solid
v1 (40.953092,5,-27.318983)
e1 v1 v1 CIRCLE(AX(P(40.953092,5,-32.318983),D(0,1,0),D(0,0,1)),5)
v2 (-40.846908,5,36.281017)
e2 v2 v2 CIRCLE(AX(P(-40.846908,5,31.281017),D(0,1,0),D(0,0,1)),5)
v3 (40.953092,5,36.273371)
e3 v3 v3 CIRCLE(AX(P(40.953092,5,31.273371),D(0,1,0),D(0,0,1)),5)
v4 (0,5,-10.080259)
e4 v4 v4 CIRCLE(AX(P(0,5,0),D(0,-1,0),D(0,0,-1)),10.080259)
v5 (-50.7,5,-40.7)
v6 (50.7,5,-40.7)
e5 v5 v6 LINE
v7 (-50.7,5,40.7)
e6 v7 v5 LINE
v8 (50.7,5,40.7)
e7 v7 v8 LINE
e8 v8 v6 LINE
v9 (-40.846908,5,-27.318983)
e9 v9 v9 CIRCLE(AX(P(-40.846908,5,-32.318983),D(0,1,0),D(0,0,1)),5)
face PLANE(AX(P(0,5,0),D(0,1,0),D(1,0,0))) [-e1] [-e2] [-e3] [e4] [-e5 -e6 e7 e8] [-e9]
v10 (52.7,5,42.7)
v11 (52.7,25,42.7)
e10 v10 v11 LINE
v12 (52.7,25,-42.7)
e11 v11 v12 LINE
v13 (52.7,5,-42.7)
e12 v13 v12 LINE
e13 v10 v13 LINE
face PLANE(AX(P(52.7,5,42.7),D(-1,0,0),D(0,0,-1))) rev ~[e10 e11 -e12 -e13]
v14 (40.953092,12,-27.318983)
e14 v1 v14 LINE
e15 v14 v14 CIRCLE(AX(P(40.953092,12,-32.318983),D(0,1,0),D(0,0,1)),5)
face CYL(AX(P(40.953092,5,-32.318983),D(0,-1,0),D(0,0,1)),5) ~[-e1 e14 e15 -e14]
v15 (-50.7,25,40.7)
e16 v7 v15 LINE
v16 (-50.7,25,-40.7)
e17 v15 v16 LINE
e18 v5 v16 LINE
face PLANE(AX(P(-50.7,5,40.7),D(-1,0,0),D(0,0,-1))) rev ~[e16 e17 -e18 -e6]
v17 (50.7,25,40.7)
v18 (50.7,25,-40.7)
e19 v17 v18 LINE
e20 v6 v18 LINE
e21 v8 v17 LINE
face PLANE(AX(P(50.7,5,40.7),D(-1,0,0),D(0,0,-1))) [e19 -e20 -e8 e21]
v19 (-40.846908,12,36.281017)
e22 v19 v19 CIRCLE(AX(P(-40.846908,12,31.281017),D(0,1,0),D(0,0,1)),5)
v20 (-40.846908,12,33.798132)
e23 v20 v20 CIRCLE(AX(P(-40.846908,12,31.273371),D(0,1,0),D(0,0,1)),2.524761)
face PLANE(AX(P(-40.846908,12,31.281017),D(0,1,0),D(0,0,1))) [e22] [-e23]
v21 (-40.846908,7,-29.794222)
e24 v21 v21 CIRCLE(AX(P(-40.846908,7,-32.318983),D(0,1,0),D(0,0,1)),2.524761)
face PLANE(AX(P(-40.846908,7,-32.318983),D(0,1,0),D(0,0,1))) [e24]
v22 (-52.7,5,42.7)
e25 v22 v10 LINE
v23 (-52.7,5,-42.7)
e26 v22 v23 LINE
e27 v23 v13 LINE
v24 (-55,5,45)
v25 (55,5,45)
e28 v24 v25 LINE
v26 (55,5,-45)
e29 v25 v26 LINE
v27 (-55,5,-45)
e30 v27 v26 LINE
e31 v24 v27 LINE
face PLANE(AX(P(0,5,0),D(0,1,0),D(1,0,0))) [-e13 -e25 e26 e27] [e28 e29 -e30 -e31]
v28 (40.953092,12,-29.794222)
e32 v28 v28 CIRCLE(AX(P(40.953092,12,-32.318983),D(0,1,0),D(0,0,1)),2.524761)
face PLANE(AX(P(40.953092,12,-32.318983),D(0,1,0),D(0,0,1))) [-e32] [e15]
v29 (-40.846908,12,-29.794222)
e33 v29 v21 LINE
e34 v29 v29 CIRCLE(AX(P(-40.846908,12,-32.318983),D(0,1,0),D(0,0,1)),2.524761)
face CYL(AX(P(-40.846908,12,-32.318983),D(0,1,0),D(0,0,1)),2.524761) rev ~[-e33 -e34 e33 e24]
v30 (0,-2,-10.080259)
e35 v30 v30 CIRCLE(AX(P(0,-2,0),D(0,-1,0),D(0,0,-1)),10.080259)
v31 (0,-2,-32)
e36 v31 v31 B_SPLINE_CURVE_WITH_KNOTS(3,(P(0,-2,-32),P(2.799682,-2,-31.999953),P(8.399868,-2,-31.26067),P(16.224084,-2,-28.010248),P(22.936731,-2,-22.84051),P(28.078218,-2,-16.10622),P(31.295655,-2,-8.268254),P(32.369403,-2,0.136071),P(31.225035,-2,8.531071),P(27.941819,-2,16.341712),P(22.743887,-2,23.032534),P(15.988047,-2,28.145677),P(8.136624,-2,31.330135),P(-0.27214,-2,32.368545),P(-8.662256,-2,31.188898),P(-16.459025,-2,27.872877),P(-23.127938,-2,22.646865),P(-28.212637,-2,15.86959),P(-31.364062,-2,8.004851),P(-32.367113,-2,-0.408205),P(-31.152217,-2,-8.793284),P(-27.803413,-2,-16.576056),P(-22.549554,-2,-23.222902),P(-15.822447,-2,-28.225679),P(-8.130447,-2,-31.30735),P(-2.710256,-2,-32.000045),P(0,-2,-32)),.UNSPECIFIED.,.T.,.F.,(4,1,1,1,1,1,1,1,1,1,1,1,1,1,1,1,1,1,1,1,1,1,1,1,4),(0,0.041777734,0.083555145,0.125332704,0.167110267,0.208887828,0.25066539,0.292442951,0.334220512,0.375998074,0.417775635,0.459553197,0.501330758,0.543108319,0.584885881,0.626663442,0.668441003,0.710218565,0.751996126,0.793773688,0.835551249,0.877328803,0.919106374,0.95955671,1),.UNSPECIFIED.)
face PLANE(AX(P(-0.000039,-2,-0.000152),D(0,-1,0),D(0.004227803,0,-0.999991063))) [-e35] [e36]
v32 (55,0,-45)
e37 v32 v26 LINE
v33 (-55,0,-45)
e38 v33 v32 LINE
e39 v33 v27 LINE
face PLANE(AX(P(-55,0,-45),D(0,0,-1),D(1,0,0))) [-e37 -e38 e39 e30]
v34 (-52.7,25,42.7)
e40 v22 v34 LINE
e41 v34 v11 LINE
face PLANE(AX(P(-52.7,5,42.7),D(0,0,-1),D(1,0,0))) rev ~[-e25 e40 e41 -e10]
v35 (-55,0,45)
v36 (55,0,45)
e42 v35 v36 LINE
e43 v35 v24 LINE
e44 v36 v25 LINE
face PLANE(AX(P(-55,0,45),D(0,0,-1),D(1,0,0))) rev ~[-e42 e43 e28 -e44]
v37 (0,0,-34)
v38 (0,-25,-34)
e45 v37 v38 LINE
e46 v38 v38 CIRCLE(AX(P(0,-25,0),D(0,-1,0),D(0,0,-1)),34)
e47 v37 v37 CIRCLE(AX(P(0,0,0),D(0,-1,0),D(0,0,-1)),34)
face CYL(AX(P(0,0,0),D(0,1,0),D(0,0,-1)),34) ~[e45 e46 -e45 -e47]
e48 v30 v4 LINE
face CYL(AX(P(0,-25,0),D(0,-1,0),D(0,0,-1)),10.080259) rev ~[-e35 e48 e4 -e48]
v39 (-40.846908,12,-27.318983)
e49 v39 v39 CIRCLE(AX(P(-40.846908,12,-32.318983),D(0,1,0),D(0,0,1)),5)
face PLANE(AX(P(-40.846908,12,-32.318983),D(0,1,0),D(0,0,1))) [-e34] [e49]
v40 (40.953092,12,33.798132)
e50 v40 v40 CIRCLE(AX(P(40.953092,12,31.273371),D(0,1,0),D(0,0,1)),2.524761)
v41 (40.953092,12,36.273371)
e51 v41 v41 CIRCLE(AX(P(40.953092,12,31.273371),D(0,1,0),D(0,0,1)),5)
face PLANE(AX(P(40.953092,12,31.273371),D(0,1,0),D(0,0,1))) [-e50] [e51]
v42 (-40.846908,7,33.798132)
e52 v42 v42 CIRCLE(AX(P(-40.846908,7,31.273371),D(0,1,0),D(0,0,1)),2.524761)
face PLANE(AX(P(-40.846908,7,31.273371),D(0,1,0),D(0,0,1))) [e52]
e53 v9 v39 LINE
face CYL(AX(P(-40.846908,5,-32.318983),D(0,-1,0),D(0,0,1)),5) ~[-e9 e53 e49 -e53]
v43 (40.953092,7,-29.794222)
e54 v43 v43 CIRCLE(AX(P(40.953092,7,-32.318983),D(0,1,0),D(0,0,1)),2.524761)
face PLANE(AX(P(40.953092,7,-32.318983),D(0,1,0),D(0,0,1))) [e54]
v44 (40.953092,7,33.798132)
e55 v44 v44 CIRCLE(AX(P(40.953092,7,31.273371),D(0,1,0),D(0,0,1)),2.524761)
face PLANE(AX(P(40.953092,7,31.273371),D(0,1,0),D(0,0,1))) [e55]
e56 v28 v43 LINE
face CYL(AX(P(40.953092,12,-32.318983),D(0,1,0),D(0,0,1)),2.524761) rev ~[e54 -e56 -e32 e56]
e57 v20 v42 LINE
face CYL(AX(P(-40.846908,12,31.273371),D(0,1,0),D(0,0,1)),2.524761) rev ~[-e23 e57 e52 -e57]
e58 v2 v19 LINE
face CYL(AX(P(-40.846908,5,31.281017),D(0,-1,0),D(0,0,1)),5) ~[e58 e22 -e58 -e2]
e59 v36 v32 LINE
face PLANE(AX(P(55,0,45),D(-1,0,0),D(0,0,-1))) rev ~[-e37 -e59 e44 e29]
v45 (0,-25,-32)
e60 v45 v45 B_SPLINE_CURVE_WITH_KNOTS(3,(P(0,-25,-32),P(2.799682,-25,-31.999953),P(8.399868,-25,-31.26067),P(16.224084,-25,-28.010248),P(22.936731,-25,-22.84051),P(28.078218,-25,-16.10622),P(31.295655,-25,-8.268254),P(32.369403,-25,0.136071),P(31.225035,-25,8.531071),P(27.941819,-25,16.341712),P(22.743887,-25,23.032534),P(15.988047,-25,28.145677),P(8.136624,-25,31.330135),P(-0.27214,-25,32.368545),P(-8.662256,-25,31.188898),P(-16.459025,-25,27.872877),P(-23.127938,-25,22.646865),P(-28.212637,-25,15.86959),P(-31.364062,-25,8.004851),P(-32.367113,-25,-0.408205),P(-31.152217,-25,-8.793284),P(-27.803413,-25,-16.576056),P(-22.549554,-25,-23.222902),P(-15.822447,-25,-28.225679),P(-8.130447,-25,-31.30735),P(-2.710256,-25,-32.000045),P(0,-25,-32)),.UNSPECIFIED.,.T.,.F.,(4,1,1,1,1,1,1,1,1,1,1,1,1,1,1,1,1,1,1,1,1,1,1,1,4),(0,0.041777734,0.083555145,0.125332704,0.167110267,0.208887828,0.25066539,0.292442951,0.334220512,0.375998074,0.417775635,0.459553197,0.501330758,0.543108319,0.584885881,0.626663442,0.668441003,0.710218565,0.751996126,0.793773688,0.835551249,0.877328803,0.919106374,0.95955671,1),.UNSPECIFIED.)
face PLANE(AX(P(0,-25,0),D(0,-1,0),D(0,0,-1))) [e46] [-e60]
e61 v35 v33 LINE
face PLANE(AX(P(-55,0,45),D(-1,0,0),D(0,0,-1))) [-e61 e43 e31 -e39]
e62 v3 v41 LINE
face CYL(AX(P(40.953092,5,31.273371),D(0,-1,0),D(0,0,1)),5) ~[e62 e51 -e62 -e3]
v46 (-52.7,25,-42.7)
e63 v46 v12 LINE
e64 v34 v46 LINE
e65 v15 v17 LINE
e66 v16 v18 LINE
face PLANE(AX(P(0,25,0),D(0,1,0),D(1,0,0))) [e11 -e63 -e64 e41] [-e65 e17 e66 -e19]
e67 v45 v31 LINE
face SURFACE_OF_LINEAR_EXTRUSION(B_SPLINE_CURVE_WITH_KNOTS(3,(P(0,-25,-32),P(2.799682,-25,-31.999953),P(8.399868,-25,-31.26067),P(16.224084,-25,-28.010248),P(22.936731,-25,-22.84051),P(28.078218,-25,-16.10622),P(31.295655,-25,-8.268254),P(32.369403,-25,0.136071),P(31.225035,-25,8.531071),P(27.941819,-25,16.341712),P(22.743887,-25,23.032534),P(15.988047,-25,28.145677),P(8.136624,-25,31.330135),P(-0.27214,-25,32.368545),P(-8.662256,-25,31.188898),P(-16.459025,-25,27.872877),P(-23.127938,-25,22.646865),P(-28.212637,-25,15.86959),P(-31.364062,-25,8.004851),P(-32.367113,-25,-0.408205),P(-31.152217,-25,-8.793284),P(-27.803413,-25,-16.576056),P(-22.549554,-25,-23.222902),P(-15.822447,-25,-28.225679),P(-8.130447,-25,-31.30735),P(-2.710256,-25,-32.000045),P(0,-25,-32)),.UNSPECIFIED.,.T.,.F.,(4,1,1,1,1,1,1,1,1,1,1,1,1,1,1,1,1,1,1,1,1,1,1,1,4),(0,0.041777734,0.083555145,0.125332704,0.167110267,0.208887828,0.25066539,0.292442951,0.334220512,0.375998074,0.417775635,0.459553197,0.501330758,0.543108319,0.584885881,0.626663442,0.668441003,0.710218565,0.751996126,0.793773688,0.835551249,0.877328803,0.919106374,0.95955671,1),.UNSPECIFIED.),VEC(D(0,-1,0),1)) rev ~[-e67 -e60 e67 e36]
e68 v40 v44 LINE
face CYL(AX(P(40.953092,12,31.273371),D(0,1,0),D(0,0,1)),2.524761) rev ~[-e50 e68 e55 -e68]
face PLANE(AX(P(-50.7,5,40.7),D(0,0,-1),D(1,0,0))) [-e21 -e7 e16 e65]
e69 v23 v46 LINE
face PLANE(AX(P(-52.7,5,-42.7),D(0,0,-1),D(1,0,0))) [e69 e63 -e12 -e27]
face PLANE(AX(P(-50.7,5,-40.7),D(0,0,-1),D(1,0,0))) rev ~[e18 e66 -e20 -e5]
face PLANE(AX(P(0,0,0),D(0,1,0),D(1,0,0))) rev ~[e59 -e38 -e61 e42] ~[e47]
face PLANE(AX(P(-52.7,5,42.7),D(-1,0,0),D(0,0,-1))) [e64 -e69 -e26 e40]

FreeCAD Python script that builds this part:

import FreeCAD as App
import Part
import Sketcher
Q = App.Units.Quantity

doc = App.newDocument("Part")
body = doc.addObject("PartDesign::Body", "Body")

sketch1 = doc.addObject("Sketcher::SketchObject", "Sketch")
body.addObject(sketch1)
sketch1.AttachmentSupport = (doc.XZ_Plane, [""])
sketch1.MapMode = "FlatFace"
sketch1.addGeometry(Part.LineSegment(App.Vector(-55, -45, 0), App.Vector(-55, 45, 0)), False)
sketch1.addGeometry(Part.LineSegment(App.Vector(-55, 45, 0), App.Vector(55, 45, 0)), False)
sketch1.addGeometry(Part.LineSegment(App.Vector(55, 45, 0), App.Vector(55, -45, 0)), False)
sketch1.addGeometry(Part.LineSegment(App.Vector(55, -45, 0), App.Vector(-55, -45, 0)), False)
sketch1.addConstraint(Sketcher.Constraint("Coincident", 0, 2, 1, 1))
sketch1.addConstraint(Sketcher.Constraint("Coincident", 1, 2, 2, 1))
sketch1.addConstraint(Sketcher.Constraint("Coincident", 2, 2, 3, 1))
sketch1.addConstraint(Sketcher.Constraint("Coincident", 3, 2, 0, 1))
sketch1.addConstraint(Sketcher.Constraint("Vertical", 0))
sketch1.addConstraint(Sketcher.Constraint("Horizontal", 1))
sketch1.addConstraint(Sketcher.Constraint("Vertical", 2))
sketch1.addConstraint(Sketcher.Constraint("Horizontal", 3))
sketch1.addConstraint(Sketcher.Constraint("Symmetric", 0, 2, 2, 2, -1, 1))
sketch1.addConstraint(Sketcher.Constraint("DistanceX", 1, 1, 1, 2, Q("110 mm")))
sketch1.addConstraint(Sketcher.Constraint("DistanceY", 0, 1, 0, 2, Q("90 mm")))
pad1 = doc.addObject("PartDesign::Pad", "Pad")
body.addObject(pad1)
pad1.Profile = sketch1
pad1.Length = 5
pad1.Reversed = True

sketch2 = doc.addObject("Sketcher::SketchObject", "Sketch001")
body.addObject(sketch2)
sketch2.AttachmentSupport = (doc.XZ_Plane, [""])
sketch2.MapMode = "FlatFace"
sketch2.AttachmentOffset = App.Placement(App.Vector(0, 0, -5), App.Rotation())
sketch2.addGeometry(Part.LineSegment(App.Vector(-53, -43, 0), App.Vector(-53, 43, 0)), False)
sketch2.addGeometry(Part.LineSegment(App.Vector(-53, 43, 0), App.Vector(53, 43, 0)), False)
sketch2.addGeometry(Part.LineSegment(App.Vector(53, 43, 0), App.Vector(53, -43, 0)), False)
sketch2.addGeometry(Part.LineSegment(App.Vector(53, -43, 0), App.Vector(-53, -43, 0)), False)
sketch2.addGeometry(Part.LineSegment(App.Vector(51, 41, 0), App.Vector(-51, 41, 0)), False)
sketch2.addGeometry(Part.LineSegment(App.Vector(-51, 41, 0), App.Vector(-51, -41, 0)), False)
sketch2.addGeometry(Part.LineSegment(App.Vector(-51, -41, 0), App.Vector(51, -41, 0)), False)
sketch2.addGeometry(Part.LineSegment(App.Vector(51, -41, 0), App.Vector(51, 41, 0)), False)
sketch2.addConstraint(Sketcher.Constraint("Coincident", 0, 2, 1, 1))
sketch2.addConstraint(Sketcher.Constraint("Coincident", 1, 2, 2, 1))
sketch2.addConstraint(Sketcher.Constraint("Coincident", 2, 2, 3, 1))
sketch2.addConstraint(Sketcher.Constraint("Coincident", 3, 2, 0, 1))
sketch2.addConstraint(Sketcher.Constraint("Coincident", 4, 2, 5, 1))
sketch2.addConstraint(Sketcher.Constraint("Coincident", 5, 2, 6, 1))
sketch2.addConstraint(Sketcher.Constraint("Coincident", 6, 2, 7, 1))
sketch2.addConstraint(Sketcher.Constraint("Coincident", 7, 2, 4, 1))
sketch2.addConstraint(Sketcher.Constraint("Vertical", 0))
sketch2.addConstraint(Sketcher.Constraint("Horizontal", 1))
sketch2.addConstraint(Sketcher.Constraint("Vertical", 2))
sketch2.addConstraint(Sketcher.Constraint("Horizontal", 3))
sketch2.addConstraint(Sketcher.Constraint("Horizontal", 4))
sketch2.addConstraint(Sketcher.Constraint("Vertical", 5))
sketch2.addConstraint(Sketcher.Constraint("Horizontal", 6))
sketch2.addConstraint(Sketcher.Constraint("Vertical", 7))
sketch2.addConstraint(Sketcher.Constraint("Symmetric", 0, 2, 2, 2, -1, 1))
sketch2.addConstraint(Sketcher.Constraint("Symmetric", 4, 2, 6, 2, -1, 1))
sketch2.addConstraint(Sketcher.Constraint("DistanceX", 1, 1, 1, 2, Q("105.4 mm")))
sketch2.addConstraint(Sketcher.Constraint("DistanceX", 4, 2, 4, 1, Q("101.4 mm")))
sketch2.addConstraint(Sketcher.Constraint("DistanceY", 0, 1, 0, 2, Q("85.4 mm")))
sketch2.addConstraint(Sketcher.Constraint("DistanceY", 5, 2, 5, 1, Q("81.4 mm")))
pad2 = doc.addObject("PartDesign::Pad", "Pad001")
body.addObject(pad2)
pad2.Profile = sketch2
pad2.Length = 20
pad2.Reversed = True

sketch3 = doc.addObject("Sketcher::SketchObject", "Sketch002")
body.addObject(sketch3)
sketch3.AttachmentSupport = (doc.XZ_Plane, [""])
sketch3.MapMode = "FlatFace"
sketch3.AttachmentOffset = App.Placement(App.Vector(0, 0, -5), App.Rotation())
sketch3.addGeometry(Part.Circle(App.Vector(-41, -32, 0), App.Vector(0, 0, 1), 5), False)
sketch3.addGeometry(Part.Circle(App.Vector(-41, 31, 0), App.Vector(0, 0, 1), 5), False)
sketch3.addGeometry(Part.Circle(App.Vector(41, 31, 0), App.Vector(0, 0, 1), 5), False)
sketch3.addGeometry(Part.Circle(App.Vector(41, -32, 0), App.Vector(0, 0, 1), 5), False)
sketch3.addConstraint(Sketcher.Constraint("Equal", 0, 1))
sketch3.addConstraint(Sketcher.Constraint("Equal", 1, 2))
sketch3.addConstraint(Sketcher.Constraint("Equal", 2, 3))
sketch3.addConstraint(Sketcher.Constraint("Horizontal", 0, 3, 3, 3))
sketch3.addConstraint(Sketcher.Constraint("Vertical", 0, 3, 1, 3))
sketch3.addConstraint(Sketcher.Constraint("Vertical", 2, 3, 3, 3))
sketch3.addConstraint(Sketcher.Constraint("Diameter", 0, Q("10 mm")))
sketch3.addConstraint(Sketcher.Constraint("DistanceY", 0, 3, 1, 3, Q("63.6 mm")))
sketch3.addConstraint(Sketcher.Constraint("DistanceX", 1, 3, 2, 3, Q("81.8 mm")))
sketch3.addConstraint(Sketcher.Constraint("DistanceY", -1, 1, 2, 3, Q("31.273371 mm")))
sketch3.addConstraint(Sketcher.Constraint("DistanceX", 0, 3, -1, 1, Q("40.846908 mm")))
sketch3.addConstraint(Sketcher.Constraint("DistanceY", 0, 3, -1, 1, Q("32.318983 mm")))
pad3 = doc.addObject("PartDesign::Pad", "Pad002")
body.addObject(pad3)
pad3.Profile = sketch3
pad3.Length = 7
pad3.Reversed = True

sketch4 = doc.addObject("Sketcher::SketchObject", "Sketch003")
body.addObject(sketch4)
sketch4.AttachmentSupport = (doc.XZ_Plane, [""])
sketch4.MapMode = "FlatFace"
sketch4.AttachmentOffset = App.Placement(App.Vector(0, 0, -12), App.Rotation())
sketch4.addGeometry(Part.Circle(App.Vector(41, -32.3, 0), App.Vector(0, 0, 1), 2.5), False)
sketch4.addGeometry(Part.Circle(App.Vector(41, 31.3, 0), App.Vector(0, 0, 1), 2.5), False)
sketch4.addGeometry(Part.Circle(App.Vector(-40.8, 31.3, 0), App.Vector(0, 0, 1), 2.5), False)
sketch4.addGeometry(Part.Circle(App.Vector(-40.8, -32.3, 0), App.Vector(0, 0, 1), 2.5), False)
sketch4.addConstraint(Sketcher.Constraint("Equal", 0, 1))
sketch4.addConstraint(Sketcher.Constraint("Equal", 1, 2))
sketch4.addConstraint(Sketcher.Constraint("Equal", 2, 3))
sketch4.addConstraint(Sketcher.Constraint("Horizontal", 1, 3, 2, 3))
sketch4.addConstraint(Sketcher.Constraint("Horizontal", 0, 3, 3, 3))
sketch4.addConstraint(Sketcher.Constraint("Vertical", 0, 3, 1, 3))
sketch4.addConstraint(Sketcher.Constraint("Vertical", 2, 3, 3, 3))
sketch4.addConstraint(Sketcher.Constraint("DistanceX", 2, 3, 1, 3, Q("81.8 mm")))
sketch4.addConstraint(Sketcher.Constraint("Diameter", 0, Q("5.049522 mm")))
sketch4.addConstraint(Sketcher.Constraint("DistanceY", -1, 1, 1, 3, Q("31.273371 mm")))
sketch4.addConstraint(Sketcher.Constraint("DistanceX", -1, 1, 0, 3, Q("40.953092 mm")))
sketch4.addConstraint(Sketcher.Constraint("DistanceY", 0, 3, -1, 1, Q("32.318983 mm")))
pocket1 = doc.addObject("PartDesign::Pocket", "Pocket")
body.addObject(pocket1)
pocket1.Profile = sketch4
pocket1.Length = 5
pocket1.Reversed = True

sketch5 = doc.addObject("Sketcher::SketchObject", "Sketch004")
body.addObject(sketch5)
sketch5.AttachmentSupport = (doc.XZ_Plane, [""])
sketch5.MapMode = "FlatFace"
sketch5.addGeometry(Part.Circle(App.Vector(0, 0, 0), App.Vector(0, 0, 1), 34), False)
sketch5.addConstraint(Sketcher.Constraint("Coincident", 0, 3, -1, 1))
sketch5.addConstraint(Sketcher.Constraint("Diameter", 0, Q("68 mm")))
pad4 = doc.addObject("PartDesign::Pad", "Pad003")
body.addObject(pad4)
pad4.Profile = sketch5
pad4.Length = 25

sketch6 = doc.addObject("Sketcher::SketchObject", "Sketch005")
body.addObject(sketch6)
sketch6.AttachmentSupport = (doc.XZ_Plane, [""])
sketch6.MapMode = "FlatFace"
sketch6.AttachmentOffset = App.Placement(App.Vector(0, 0, 25), App.Rotation())
sketch6.addGeometry(Part.Circle(App.Vector(0, 0, 0), App.Vector(0, 0, 1), 10), False)
sketch6.addConstraint(Sketcher.Constraint("Coincident", 0, 3, -1, 1))
sketch6.addConstraint(Sketcher.Constraint("Diameter", 0, Q("20.160518 mm")))
pocket2 = doc.addObject("PartDesign::Pocket", "Pocket001")
body.addObject(pocket2)
pocket2.Profile = sketch6
pocket2.Length = 31

sketch7 = doc.addObject("Sketcher::SketchObject", "Sketch006")
body.addObject(sketch7)
sketch7.AttachmentSupport = (doc.XZ_Plane, [""])
sketch7.MapMode = "FlatFace"
sketch7.AttachmentOffset = App.Placement(App.Vector(0, 0, 25), App.Rotation())
sketch7.addGeometry(Part.BSplineCurve([App.Vector(0, -32, 0), App.Vector(2.799682, -31.999953, 0), App.Vector(8.399868, -31.26067, 0), App.Vector(16.224084, -28.010248, 0), App.Vector(22.936731, -22.84051, 0), App.Vector(28.078218, -16.10622, 0), App.Vector(31.295655, -8.268254, 0), App.Vector(32.369403, 0.136071, 0), App.Vector(31.225035, 8.531071, 0), App.Vector(27.941819, 16.341712, 0), App.Vector(22.743887, 23.032534, 0), App.Vector(15.988047, 28.145677, 0), App.Vector(8.136624, 31.330135, 0), App.Vector(-0.27214, 32.368545, 0), App.Vector(-8.662256, 31.188898, 0), App.Vector(-16.459025, 27.872877, 0), App.Vector(-23.127938, 22.646865, 0), App.Vector(-28.212637, 15.869591, 0), App.Vector(-31.364062, 8.004851, 0), App.Vector(-32.367113, -0.408205, 0), App.Vector(-31.152217, -8.793284, 0), App.Vector(-27.803413, -16.576056, 0), App.Vector(-22.549554, -23.222902, 0), App.Vector(-15.822447, -28.225679, 0), App.Vector(-8.130447, -31.30735, 0), App.Vector(-2.710256, -32.000045, 0), App.Vector(0, -32, 0)], [4, 1, 1, 1, 1, 1, 1, 1, 1, 1, 1, 1, 1, 1, 1, 1, 1, 1, 1, 1, 1, 1, 1, 1, 4], [0, 0.041777734, 0.083555145, 0.125332704, 0.167110267, 0.208887828, 0.25066539, 0.292442951, 0.334220512, 0.375998074, 0.417775635, 0.459553197, 0.501330758, 0.543108319, 0.584885881, 0.626663442, 0.668441003, 0.710218565, 0.751996126, 0.793773688, 0.835551249, 0.877328803, 0.919106374, 0.95955671, 1], False, 3, [1, 1, 1, 1, 1, 1, 1, 1, 1, 1, 1, 1, 1, 1, 1, 1, 1, 1, 1, 1, 1, 1, 1, 1, 1, 1, 1], False), False)
sketch7.addConstraint(Sketcher.Constraint("Block", 0))
pocket3 = doc.addObject("PartDesign::Pocket", "Pocket002")
body.addObject(pocket3)
pocket3.Profile = sketch7
pocket3.Length = 23

doc.recompute()
